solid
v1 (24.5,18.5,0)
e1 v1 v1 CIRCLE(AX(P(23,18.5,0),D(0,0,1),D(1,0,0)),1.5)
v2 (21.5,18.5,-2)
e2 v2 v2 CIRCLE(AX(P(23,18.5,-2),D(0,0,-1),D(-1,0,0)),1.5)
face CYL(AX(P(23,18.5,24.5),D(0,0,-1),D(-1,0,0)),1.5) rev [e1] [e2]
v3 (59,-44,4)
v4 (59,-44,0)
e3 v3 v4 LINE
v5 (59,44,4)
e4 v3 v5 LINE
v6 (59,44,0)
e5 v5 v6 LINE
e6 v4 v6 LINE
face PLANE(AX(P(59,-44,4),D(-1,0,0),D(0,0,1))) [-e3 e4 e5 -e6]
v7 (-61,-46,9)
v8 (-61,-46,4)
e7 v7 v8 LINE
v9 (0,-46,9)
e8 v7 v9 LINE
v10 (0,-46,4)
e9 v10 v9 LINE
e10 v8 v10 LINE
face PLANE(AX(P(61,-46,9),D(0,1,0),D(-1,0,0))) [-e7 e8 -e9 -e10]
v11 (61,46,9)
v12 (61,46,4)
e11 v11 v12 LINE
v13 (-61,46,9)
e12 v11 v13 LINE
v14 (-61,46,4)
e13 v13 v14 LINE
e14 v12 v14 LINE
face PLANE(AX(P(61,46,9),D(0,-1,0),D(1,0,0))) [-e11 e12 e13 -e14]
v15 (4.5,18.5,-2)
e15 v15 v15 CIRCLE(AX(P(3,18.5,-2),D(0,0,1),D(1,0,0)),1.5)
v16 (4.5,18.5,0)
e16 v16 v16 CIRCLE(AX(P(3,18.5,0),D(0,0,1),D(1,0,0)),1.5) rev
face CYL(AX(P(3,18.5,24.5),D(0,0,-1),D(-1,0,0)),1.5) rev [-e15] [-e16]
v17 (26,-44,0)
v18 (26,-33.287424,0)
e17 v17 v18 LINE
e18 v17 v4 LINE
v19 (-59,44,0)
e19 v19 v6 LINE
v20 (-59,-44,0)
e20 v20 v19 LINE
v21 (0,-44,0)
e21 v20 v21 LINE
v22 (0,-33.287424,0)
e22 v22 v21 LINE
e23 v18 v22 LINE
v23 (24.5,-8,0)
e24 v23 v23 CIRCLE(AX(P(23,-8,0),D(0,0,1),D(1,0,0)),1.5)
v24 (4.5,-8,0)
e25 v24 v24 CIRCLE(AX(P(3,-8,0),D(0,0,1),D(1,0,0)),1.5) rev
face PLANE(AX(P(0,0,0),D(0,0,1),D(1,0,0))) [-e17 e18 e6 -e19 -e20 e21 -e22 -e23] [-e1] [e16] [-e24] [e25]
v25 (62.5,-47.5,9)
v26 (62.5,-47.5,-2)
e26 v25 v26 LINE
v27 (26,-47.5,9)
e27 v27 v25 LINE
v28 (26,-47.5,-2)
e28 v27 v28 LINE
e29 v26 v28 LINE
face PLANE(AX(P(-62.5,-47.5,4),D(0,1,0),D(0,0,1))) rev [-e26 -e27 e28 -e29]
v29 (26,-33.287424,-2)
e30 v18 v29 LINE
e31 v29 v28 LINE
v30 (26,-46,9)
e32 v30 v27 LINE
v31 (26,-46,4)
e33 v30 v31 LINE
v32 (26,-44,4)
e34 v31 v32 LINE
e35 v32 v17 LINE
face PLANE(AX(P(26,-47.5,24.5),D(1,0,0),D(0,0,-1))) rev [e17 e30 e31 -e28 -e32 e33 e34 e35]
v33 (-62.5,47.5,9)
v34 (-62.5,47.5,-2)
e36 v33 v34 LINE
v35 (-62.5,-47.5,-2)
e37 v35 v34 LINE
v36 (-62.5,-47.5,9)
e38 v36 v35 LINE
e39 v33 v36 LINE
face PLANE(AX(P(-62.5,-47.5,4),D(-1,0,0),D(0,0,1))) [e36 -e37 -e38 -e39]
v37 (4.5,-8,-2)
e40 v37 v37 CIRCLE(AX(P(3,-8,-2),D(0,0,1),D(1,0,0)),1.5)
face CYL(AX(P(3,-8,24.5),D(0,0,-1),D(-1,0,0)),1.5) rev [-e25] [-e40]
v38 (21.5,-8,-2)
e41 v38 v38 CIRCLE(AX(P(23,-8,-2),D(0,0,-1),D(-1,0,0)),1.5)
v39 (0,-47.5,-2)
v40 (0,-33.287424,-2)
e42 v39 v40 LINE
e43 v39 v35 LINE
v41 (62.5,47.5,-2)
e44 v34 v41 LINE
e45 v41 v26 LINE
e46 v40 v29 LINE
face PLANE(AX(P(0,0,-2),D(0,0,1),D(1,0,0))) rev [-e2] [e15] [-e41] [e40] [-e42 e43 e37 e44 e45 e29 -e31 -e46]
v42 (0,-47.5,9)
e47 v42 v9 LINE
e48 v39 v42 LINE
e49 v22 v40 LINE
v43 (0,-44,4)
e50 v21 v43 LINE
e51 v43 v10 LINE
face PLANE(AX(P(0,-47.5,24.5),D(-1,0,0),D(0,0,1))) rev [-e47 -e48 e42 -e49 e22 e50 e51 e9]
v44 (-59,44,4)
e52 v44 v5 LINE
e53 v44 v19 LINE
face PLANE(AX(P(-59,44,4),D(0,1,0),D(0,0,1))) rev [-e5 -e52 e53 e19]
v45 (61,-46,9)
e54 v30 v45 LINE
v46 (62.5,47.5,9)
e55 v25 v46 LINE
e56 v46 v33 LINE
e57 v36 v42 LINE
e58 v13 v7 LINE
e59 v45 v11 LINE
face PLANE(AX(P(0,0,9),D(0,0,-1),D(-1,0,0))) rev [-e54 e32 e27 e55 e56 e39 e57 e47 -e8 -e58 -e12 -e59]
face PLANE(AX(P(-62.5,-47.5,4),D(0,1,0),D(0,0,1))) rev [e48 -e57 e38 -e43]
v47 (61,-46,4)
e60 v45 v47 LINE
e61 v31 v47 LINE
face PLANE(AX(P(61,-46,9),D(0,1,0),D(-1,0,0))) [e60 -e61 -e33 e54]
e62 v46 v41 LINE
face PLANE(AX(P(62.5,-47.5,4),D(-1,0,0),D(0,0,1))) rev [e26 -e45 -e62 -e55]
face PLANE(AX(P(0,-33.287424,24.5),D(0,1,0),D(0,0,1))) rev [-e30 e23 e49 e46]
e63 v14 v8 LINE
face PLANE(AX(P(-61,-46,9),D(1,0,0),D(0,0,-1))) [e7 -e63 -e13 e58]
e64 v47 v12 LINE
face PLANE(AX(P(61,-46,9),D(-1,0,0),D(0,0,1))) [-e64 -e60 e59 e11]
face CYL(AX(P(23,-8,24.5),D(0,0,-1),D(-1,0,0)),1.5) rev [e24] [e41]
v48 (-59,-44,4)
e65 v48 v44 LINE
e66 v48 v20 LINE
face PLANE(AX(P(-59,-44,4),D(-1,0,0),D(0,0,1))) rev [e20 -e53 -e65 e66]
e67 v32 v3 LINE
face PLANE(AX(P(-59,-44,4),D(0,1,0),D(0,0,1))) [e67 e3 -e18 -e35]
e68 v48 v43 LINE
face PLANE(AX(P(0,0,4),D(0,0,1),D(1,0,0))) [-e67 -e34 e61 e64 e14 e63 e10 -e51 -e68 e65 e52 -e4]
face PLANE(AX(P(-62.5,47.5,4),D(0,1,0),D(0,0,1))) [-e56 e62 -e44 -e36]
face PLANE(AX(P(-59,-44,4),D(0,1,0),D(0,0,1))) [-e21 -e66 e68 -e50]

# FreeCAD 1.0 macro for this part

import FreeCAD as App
import Part
import Sketcher
from FreeCAD import Vector

doc = App.newDocument("Part")
body = doc.addObject("PartDesign::Body", "Body")

# Sketch on XY plane
sketch1 = doc.addObject("Sketcher::SketchObject", "Sketch")
body.addObject(sketch1)
sketch1.AttachmentSupport = (doc.XY_Plane, [""])
sketch1.MapMode = "FlatFace"
sketch1.addGeometry([
    Part.LineSegment(Vector(-62, 48, 0), Vector(-62, -48, 0)),  # 0
    Part.LineSegment(Vector(-62, -48, 0), Vector(62, -48, 0)),  # 1
    Part.LineSegment(Vector(62, -48, 0), Vector(62, 48, 0)),  # 2
    Part.LineSegment(Vector(62, 48, 0), Vector(-62, 48, 0)),  # 3
    Part.LineSegment(Vector(59, -44, 0), Vector(-59, -44, 0)),  # 4
    Part.LineSegment(Vector(-59, -44, 0), Vector(-59, 44, 0)),  # 5
    Part.LineSegment(Vector(-59, 44, 0), Vector(59, 44, 0)),  # 6
    Part.LineSegment(Vector(59, 44, 0), Vector(59, -44, 0)),  # 7
], False)
sketch1.addConstraint([
    Sketcher.Constraint("Coincident", 0, 2, 1, 1),
    Sketcher.Constraint("Coincident", 1, 2, 2, 1),
    Sketcher.Constraint("Coincident", 2, 2, 3, 1),
    Sketcher.Constraint("Coincident", 3, 2, 0, 1),
    Sketcher.Constraint("Coincident", 4, 2, 5, 1),
    Sketcher.Constraint("Coincident", 5, 2, 6, 1),
    Sketcher.Constraint("Coincident", 6, 2, 7, 1),
    Sketcher.Constraint("Coincident", 7, 2, 4, 1),
    Sketcher.Constraint("Vertical", 0),
    Sketcher.Constraint("Horizontal", 1),
    Sketcher.Constraint("Vertical", 2),
    Sketcher.Constraint("Horizontal", 3),
    Sketcher.Constraint("Horizontal", 4),
    Sketcher.Constraint("Vertical", 5),
    Sketcher.Constraint("Horizontal", 6),
    Sketcher.Constraint("Vertical", 7),
    Sketcher.Constraint("Symmetric", 0, 2, 2, 2, -1, 1),
    Sketcher.Constraint("Symmetric", 4, 2, 6, 2, -1, 1),
    Sketcher.Constraint("DistanceX", 1, 1, 1, 2, 125.0),
    Sketcher.Constraint("DistanceX", 4, 2, 4, 1, 118.0),
    Sketcher.Constraint("DistanceY", 0, 2, 0, 1, 95.0),
    Sketcher.Constraint("DistanceY", 5, 1, 5, 2, 88.0),
])
pad1 = doc.addObject("PartDesign::Pad", "Pad")
body.addObject(pad1)
pad1.Profile = sketch1
pad1.Length = 4

# Sketch on XY plane
sketch2 = doc.addObject("Sketcher::SketchObject", "Sketch001")
body.addObject(sketch2)
sketch2.AttachmentSupport = (doc.XY_Plane, [""])
sketch2.MapMode = "FlatFace"
sketch2.addGeometry([
    Part.LineSegment(Vector(62, 48, 0), Vector(62, -48, 0)),
    Part.LineSegment(Vector(62, -48, 0), Vector(-62, -48, 0)),
    Part.LineSegment(Vector(-62, -48, 0), Vector(-62, 48, 0)),
    Part.LineSegment(Vector(-62, 48, 0), Vector(62, 48, 0)),
], False)
sketch2.addConstraint([
    Sketcher.Constraint("Coincident", 0, 2, 1, 1),
    Sketcher.Constraint("Coincident", 1, 2, 2, 1),
    Sketcher.Constraint("Coincident", 2, 2, 3, 1),
    Sketcher.Constraint("Coincident", 3, 2, 0, 1),
    Sketcher.Constraint("Vertical", 0),
    Sketcher.Constraint("Horizontal", 1),
    Sketcher.Constraint("Vertical", 2),
    Sketcher.Constraint("Horizontal", 3),
    Sketcher.Constraint("Symmetric", 0, 2, 2, 2, -1, 1),
    Sketcher.Constraint("DistanceX", 1, 2, 1, 1, 125.0),
    Sketcher.Constraint("DistanceY", 0, 2, 0, 1, 95.0),
])
pad2 = doc.addObject("PartDesign::Pad", "Pad001")
body.addObject(pad2)
pad2.Profile = sketch2
pad2.Length = 2
pad2.Reversed = True

# Sketch on XY plane
sketch3 = doc.addObject("Sketcher::SketchObject", "Sketch002")
body.addObject(sketch3)
sketch3.AttachmentSupport = (doc.XY_Plane, [""])
sketch3.MapMode = "FlatFace"
sketch3.AttachmentOffset = App.Placement(Vector(0, 0, 4), App.Rotation())
sketch3.addGeometry([
    Part.LineSegment(Vector(-62, 48, 0), Vector(-62, -48, 0)),  # 0
    Part.LineSegment(Vector(-62, -48, 0), Vector(62, -48, 0)),  # 1
    Part.LineSegment(Vector(62, -48, 0), Vector(62, 48, 0)),  # 2
    Part.LineSegment(Vector(62, 48, 0), Vector(-62, 48, 0)),  # 3
    Part.LineSegment(Vector(61, -46, 0), Vector(-61, -46, 0)),  # 4
    Part.LineSegment(Vector(-61, -46, 0), Vector(-61, 46, 0)),  # 5
    Part.LineSegment(Vector(-61, 46, 0), Vector(61, 46, 0)),  # 6
    Part.LineSegment(Vector(61, 46, 0), Vector(61, -46, 0)),  # 7
], False)
sketch3.addConstraint([
    Sketcher.Constraint("Coincident", 0, 2, 1, 1),
    Sketcher.Constraint("Coincident", 1, 2, 2, 1),
    Sketcher.Constraint("Coincident", 2, 2, 3, 1),
    Sketcher.Constraint("Coincident", 3, 2, 0, 1),
    Sketcher.Constraint("Coincident", 4, 2, 5, 1),
    Sketcher.Constraint("Coincident", 5, 2, 6, 1),
    Sketcher.Constraint("Coincident", 6, 2, 7, 1),
    Sketcher.Constraint("Coincident", 7, 2, 4, 1),
    Sketcher.Constraint("Vertical", 0),
    Sketcher.Constraint("Horizontal", 1),
    Sketcher.Constraint("Vertical", 2),
    Sketcher.Constraint("Horizontal", 3),
    Sketcher.Constraint("Horizontal", 4),
    Sketcher.Constraint("Vertical", 5),
    Sketcher.Constraint("Horizontal", 6),
    Sketcher.Constraint("Vertical", 7),
    Sketcher.Constraint("Symmetric", 0, 2, 2, 2, -1, 1),
    Sketcher.Constraint("Symmetric", 4, 2, 6, 2, -1, 1),
    Sketcher.Constraint("DistanceX", 1, 1, 1, 2, 125.0),
    Sketcher.Constraint("DistanceX", 4, 2, 4, 1, 122.0),
    Sketcher.Constraint("DistanceY", 0, 2, 0, 1, 95.0),
    Sketcher.Constraint("DistanceY", 5, 1, 5, 2, 92.0),
])
pad3 = doc.addObject("PartDesign::Pad", "Pad002")
body.addObject(pad3)
pad3.Profile = sketch3
pad3.Length = 5

# Sketch on XY plane
sketch4 = doc.addObject("Sketcher::SketchObject", "Sketch003")
body.addObject(sketch4)
sketch4.AttachmentSupport = (doc.XY_Plane, [""])
sketch4.MapMode = "FlatFace"
sketch4.AttachmentOffset = App.Placement(Vector(0, 0, -2), App.Rotation())
sketch4.addGeometry([
    Part.Circle(Vector(23, 18.5, 0), Vector(0, 0, 1), 1.5),
    Part.Circle(Vector(23, -8, 0), Vector(0, 0, 1), 1.5),
    Part.Circle(Vector(3, -8, 0), Vector(0, 0, 1), 1.5),
    Part.Circle(Vector(3, 18.5, 0), Vector(0, 0, 1), 1.5),
], False)
sketch4.addConstraint([
    Sketcher.Constraint("Equal", 0, 1),
    Sketcher.Constraint("Equal", 1, 2),
    Sketcher.Constraint("Equal", 2, 3),
    Sketcher.Constraint("Horizontal", 1, 3, 2, 3),
    Sketcher.Constraint("Horizontal", 0, 3, 3, 3),
    Sketcher.Constraint("Vertical", 0, 3, 1, 3),
    Sketcher.Constraint("Vertical", 2, 3, 3, 3),
    Sketcher.Constraint("Diameter", 0, 3.0),
    Sketcher.Constraint("DistanceX", -1, 1, 0, 3, 23.0),
    Sketcher.Constraint("DistanceY", 1, 3, -1, 1, 8.0),
    Sketcher.Constraint("DistanceX", -1, 1, 2, 3, 3.0),
    Sketcher.Constraint("DistanceY", -1, 1, 0, 3, 18.5),
])
pocket1 = doc.addObject("PartDesign::Pocket", "Pocket")
body.addObject(pocket1)
pocket1.Profile = sketch4
pocket1.Length = 26.5
pocket1.Reversed = True

# Sketch on XY plane
sketch5 = doc.addObject("Sketcher::SketchObject", "Sketch004")
body.addObject(sketch5)
sketch5.AttachmentSupport = (doc.XY_Plane, [""])
sketch5.MapMode = "FlatFace"
sketch5.AttachmentOffset = App.Placement(Vector(0, 0, -2), App.Rotation())
sketch5.addGeometry([
    Part.LineSegment(Vector(26, -33, 0), Vector(26, -48, 0)),
    Part.LineSegment(Vector(26, -48, 0), Vector(0, -48, 0)),
    Part.LineSegment(Vector(0, -48, 0), Vector(0, -33, 0)),
    Part.LineSegment(Vector(0, -33, 0), Vector(26, -33, 0)),
], False)
sketch5.addConstraint([
    Sketcher.Constraint("Coincident", 0, 2, 1, 1),
    Sketcher.Constraint("Coincident", 1, 2, 2, 1),
    Sketcher.Constraint("Coincident", 2, 2, 3, 1),
    Sketcher.Constraint("Coincident", 3, 2, 0, 1),
    Sketcher.Constraint("Vertical", 0),
    Sketcher.Constraint("Horizontal", 1),
    Sketcher.Constraint("Vertical", 2),
    Sketcher.Constraint("Horizontal", 3),
    Sketcher.Constraint("PointOnObject", 1, 2, -2),
    Sketcher.Constraint("DistanceX", 1, 2, 1, 1, 26.0),
    Sketcher.Constraint("DistanceY", 0, 2, -1, 1, 47.5),
    Sketcher.Constraint("DistanceY", 0, 2, 0, 1, 14.212576),
])
pocket2 = doc.addObject("PartDesign::Pocket", "Pocket001")
body.addObject(pocket2)
pocket2.Profile = sketch5
pocket2.Length = 26.5
pocket2.Reversed = True

doc.recompute()
